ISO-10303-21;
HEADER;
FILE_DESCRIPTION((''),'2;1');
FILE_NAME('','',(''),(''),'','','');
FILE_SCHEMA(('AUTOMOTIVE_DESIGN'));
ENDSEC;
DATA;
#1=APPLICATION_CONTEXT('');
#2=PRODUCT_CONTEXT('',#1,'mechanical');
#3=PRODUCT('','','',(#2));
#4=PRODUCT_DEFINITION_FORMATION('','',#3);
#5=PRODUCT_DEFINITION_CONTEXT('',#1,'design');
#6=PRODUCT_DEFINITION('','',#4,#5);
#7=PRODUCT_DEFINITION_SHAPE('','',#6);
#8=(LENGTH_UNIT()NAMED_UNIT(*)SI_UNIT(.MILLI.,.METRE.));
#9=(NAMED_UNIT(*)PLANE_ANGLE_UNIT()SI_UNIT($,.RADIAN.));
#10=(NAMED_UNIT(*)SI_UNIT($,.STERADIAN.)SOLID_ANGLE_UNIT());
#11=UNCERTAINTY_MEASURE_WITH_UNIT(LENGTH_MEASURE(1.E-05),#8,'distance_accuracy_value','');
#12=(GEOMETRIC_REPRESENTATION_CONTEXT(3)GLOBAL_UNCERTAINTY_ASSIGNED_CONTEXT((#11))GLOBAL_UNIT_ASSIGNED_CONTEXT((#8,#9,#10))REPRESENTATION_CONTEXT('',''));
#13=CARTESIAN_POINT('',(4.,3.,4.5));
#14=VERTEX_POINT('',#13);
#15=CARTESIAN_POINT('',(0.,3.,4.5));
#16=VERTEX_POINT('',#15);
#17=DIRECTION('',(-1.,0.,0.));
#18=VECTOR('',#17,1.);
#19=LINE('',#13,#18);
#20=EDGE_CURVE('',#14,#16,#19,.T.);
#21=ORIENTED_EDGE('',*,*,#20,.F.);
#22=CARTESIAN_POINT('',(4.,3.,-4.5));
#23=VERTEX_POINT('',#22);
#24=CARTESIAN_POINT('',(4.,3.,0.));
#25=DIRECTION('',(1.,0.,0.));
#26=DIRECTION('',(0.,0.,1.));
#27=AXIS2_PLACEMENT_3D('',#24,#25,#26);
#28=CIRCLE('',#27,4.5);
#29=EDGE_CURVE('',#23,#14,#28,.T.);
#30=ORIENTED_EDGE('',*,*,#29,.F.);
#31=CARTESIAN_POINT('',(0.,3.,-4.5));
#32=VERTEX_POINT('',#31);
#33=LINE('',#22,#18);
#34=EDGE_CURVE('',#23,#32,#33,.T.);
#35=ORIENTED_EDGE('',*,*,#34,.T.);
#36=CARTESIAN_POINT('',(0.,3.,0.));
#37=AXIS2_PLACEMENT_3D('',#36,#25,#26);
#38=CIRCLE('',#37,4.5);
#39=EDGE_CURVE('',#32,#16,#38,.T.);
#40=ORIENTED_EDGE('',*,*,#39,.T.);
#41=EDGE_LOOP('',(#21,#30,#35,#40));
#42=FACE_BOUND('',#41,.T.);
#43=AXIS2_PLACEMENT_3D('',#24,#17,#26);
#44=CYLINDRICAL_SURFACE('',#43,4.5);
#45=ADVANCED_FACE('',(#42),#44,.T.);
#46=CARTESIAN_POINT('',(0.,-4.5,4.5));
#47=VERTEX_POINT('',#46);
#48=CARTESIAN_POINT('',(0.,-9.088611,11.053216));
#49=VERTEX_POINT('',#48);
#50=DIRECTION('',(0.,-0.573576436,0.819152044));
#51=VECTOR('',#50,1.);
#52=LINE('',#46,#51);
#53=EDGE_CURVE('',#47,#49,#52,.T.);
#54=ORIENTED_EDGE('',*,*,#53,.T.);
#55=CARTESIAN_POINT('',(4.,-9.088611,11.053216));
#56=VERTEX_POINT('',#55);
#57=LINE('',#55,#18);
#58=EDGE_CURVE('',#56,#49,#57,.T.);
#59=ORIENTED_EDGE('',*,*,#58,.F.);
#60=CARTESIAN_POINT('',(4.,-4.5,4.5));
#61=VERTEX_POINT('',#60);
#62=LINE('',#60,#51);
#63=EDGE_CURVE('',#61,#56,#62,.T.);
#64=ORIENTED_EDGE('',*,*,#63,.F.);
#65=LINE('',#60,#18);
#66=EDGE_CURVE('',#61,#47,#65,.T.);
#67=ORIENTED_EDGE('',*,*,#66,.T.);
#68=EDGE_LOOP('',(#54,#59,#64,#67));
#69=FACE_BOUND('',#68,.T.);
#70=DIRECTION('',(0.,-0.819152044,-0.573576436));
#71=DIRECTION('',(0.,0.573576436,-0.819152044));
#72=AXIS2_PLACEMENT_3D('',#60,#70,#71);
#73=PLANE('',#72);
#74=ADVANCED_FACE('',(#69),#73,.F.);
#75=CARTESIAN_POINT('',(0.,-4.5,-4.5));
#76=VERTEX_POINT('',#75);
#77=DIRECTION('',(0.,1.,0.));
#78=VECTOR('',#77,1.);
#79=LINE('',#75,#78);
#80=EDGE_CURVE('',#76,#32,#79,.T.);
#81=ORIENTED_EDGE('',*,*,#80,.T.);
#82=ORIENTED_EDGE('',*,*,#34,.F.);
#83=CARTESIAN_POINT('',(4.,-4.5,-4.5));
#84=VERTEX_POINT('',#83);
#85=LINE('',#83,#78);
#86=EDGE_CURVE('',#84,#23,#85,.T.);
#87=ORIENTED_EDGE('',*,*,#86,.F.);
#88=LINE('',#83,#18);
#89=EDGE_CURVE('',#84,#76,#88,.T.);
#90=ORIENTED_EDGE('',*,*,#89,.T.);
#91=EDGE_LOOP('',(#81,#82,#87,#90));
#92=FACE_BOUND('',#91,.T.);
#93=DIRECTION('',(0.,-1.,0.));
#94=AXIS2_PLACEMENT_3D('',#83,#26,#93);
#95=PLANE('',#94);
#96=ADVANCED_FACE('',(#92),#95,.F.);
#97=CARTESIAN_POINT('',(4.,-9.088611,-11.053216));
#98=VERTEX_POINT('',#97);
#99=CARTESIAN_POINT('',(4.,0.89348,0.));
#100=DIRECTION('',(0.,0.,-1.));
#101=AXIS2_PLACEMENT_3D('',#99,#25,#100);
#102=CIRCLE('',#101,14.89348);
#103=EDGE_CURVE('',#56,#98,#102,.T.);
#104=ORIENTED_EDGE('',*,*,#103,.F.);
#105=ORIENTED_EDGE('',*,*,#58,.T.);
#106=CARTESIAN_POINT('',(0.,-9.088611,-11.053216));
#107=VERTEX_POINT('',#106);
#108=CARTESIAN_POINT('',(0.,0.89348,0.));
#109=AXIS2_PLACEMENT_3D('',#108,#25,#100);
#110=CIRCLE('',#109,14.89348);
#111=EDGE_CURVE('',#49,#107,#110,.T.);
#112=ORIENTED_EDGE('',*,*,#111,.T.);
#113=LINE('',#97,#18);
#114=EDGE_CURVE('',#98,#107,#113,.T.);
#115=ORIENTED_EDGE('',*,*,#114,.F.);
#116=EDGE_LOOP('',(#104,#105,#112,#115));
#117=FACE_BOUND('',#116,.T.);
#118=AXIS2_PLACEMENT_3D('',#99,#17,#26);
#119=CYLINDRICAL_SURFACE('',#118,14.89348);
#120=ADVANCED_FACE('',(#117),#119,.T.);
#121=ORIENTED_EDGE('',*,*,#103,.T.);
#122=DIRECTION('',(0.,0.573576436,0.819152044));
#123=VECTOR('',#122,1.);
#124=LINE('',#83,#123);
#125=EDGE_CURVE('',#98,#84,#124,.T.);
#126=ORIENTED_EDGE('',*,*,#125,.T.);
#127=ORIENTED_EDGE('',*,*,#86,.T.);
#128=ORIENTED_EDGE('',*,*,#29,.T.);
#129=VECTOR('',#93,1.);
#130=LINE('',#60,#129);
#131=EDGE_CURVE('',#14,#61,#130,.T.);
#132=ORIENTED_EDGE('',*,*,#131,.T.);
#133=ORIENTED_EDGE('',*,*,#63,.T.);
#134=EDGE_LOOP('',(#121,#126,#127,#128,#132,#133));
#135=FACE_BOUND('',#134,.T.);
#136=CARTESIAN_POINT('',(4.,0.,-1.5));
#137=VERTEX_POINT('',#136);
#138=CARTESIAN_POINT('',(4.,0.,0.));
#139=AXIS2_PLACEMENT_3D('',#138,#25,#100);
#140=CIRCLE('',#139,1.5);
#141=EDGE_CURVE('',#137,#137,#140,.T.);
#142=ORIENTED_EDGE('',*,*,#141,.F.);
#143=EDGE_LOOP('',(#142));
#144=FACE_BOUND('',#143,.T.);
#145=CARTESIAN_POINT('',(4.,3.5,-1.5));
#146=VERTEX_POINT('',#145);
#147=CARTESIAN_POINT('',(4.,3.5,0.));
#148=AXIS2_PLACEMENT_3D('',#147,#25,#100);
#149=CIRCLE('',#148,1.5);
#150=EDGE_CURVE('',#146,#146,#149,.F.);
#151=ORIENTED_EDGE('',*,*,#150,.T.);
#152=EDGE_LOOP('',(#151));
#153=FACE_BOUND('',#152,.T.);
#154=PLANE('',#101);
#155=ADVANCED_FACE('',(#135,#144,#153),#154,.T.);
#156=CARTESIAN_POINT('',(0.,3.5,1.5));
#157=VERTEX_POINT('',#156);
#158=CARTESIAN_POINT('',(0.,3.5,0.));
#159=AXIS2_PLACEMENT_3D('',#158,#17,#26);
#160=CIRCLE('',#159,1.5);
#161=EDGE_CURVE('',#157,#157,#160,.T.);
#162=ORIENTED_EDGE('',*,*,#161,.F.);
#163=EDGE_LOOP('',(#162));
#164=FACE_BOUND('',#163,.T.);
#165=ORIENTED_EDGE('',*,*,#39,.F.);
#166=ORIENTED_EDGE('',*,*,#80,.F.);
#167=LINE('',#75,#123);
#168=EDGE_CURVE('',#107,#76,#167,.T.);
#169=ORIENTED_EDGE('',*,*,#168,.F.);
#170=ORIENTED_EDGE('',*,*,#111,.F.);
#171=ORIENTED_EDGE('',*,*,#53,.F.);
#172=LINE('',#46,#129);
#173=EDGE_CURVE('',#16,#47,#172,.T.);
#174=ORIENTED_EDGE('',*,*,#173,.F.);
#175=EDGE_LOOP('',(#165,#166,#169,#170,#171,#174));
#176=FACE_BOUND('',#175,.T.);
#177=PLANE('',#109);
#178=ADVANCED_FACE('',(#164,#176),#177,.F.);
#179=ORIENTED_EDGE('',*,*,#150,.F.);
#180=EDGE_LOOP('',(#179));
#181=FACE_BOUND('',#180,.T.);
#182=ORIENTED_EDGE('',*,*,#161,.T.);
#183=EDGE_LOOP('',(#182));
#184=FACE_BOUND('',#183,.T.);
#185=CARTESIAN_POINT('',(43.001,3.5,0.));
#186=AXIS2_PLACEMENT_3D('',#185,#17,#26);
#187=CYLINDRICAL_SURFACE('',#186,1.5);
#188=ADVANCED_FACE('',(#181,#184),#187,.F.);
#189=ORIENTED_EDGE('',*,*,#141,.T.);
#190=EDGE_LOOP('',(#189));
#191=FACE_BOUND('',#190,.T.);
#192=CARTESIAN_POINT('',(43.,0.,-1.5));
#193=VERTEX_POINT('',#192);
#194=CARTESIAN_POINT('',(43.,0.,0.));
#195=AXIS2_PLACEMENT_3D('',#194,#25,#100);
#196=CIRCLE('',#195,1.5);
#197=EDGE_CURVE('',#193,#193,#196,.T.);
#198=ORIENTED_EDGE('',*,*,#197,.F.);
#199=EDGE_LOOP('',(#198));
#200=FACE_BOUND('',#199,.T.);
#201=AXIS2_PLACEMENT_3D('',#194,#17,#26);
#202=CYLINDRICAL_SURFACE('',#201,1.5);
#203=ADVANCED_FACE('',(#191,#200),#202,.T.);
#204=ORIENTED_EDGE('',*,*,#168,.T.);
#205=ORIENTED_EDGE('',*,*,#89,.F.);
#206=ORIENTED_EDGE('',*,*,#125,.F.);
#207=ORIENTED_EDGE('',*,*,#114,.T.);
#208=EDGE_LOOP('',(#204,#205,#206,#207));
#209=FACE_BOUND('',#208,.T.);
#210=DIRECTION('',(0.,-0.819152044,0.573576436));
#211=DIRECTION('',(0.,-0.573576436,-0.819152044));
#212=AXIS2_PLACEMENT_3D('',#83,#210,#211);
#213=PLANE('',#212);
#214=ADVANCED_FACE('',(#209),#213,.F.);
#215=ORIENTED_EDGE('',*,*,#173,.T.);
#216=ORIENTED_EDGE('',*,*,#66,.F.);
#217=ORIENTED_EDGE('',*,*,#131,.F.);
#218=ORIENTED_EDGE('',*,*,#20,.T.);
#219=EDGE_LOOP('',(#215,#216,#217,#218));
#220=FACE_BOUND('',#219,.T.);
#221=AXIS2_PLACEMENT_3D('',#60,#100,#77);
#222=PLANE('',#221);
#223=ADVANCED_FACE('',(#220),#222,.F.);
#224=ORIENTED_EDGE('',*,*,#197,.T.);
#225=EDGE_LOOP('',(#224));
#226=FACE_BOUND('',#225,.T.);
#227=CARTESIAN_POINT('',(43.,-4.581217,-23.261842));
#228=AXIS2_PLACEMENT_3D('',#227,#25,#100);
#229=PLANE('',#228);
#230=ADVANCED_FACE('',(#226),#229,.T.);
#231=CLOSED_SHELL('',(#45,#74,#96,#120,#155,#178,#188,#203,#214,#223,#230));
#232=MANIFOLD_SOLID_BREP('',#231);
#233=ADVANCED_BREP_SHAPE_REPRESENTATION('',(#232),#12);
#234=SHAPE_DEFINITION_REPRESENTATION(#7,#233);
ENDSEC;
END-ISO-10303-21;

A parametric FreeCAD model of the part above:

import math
import FreeCAD as App
import Part
import Sketcher
from FreeCAD import Vector
Q = App.Units.Quantity

doc = App.newDocument("Part")
body = doc.addObject("PartDesign::Body", "Body")

# Sketch on YZ plane
sketch1 = doc.addObject("Sketcher::SketchObject", "Sketch")
body.addObject(sketch1)
sketch1.AttachmentSupport = (doc.YZ_Plane, [""])
sketch1.MapMode = "FlatFace"
sketch1.addGeometry(Part.LineSegment(Vector(3, 4.5, 0), Vector(-4.5, 4.5, 0)), False)
sketch1.addGeometry(Part.LineSegment(Vector(-4.5, 4.5, 0), Vector(-9.088611, 11.053216, 0)), False)
sketch1.addGeometry(Part.ArcOfCircle(Part.Circle(Vector(0.89348, 0, 0), Vector(0, 0, 1), 14.89348), math.radians(132.084996), math.radians(227.915004)), False)
sketch1.addGeometry(Part.LineSegment(Vector(-9.088611, -11.053216, 0), Vector(-4.5, -4.5, 0)), False)
sketch1.addGeometry(Part.LineSegment(Vector(-4.5, -4.5, 0), Vector(3, -4.5, 0)), False)
sketch1.addGeometry(Part.ArcOfCircle(Part.Circle(Vector(3, 0, 0), Vector(0, 0, 1), 4.5), math.radians(-90), math.radians(90)), False)
sketch1.addGeometry(Part.Circle(Vector(0, 0, 0), Vector(0, 0, 1), 1.5), False)
sketch1.addConstraint(Sketcher.Constraint("Coincident", 0, 2, 1, 1))
sketch1.addConstraint(Sketcher.Constraint("Coincident", 1, 2, 2, 1))
sketch1.addConstraint(Sketcher.Constraint("Coincident", 2, 2, 3, 1))
sketch1.addConstraint(Sketcher.Constraint("Coincident", 3, 2, 4, 1))
sketch1.addConstraint(Sketcher.Constraint("Tangent", 4, 2, 5, 1))
sketch1.addConstraint(Sketcher.Constraint("Tangent", 5, 2, 0, 1))
sketch1.addConstraint(Sketcher.Constraint("Horizontal", 0))
sketch1.addConstraint(Sketcher.Constraint("Horizontal", 4))
sketch1.addConstraint(Sketcher.Constraint("Coincident", 6, 3, -1, 1))
sketch1.addConstraint(Sketcher.Constraint("Symmetric", 1, 2, 2, 2, -1))
sketch1.addConstraint(Sketcher.Constraint("Symmetric", 0, 2, 3, 2, -1))
sketch1.addConstraint(Sketcher.Constraint("Diameter", 6, Q("3 mm")))
sketch1.addConstraint(Sketcher.Constraint("Radius", 5, Q("4.5 mm")))
sketch1.addConstraint(Sketcher.Constraint("Angle", 1, Q("125 deg")))
sketch1.addConstraint(Sketcher.Constraint("Distance", 1, Q("8 mm")))
sketch1.addConstraint(Sketcher.Constraint("DistanceX", 0, 2, 0, 1, Q("7.5 mm")))
sketch1.addConstraint(Sketcher.Constraint("DistanceX", -1, 1, 5, 3, Q("3 mm")))
sketch1.addConstraint(Sketcher.Constraint("Radius", 2, Q("14.89348 mm")))
pad1 = doc.addObject("PartDesign::Pad", "Pad")
body.addObject(pad1)
pad1.Profile = sketch1
pad1.Length = 4

# Sketch on YZ plane
sketch2 = doc.addObject("Sketcher::SketchObject", "Sketch001")
body.addObject(sketch2)
sketch2.AttachmentSupport = (doc.YZ_Plane, [""])
sketch2.MapMode = "FlatFace"
sketch2.addGeometry(Part.Circle(Vector(0, 0, 0), Vector(0, 0, 1), 1.5), False)
sketch2.addConstraint(Sketcher.Constraint("Coincident", 0, 3, -1, 1))
sketch2.addConstraint(Sketcher.Constraint("Diameter", 0, Q("3 mm")))
pad2 = doc.addObject("PartDesign::Pad", "Pad001")
body.addObject(pad2)
pad2.Profile = sketch2
pad2.Length = 43

# Sketch on YZ plane
sketch3 = doc.addObject("Sketcher::SketchObject", "Sketch002")
body.addObject(sketch3)
sketch3.AttachmentSupport = (doc.YZ_Plane, [""])
sketch3.MapMode = "FlatFace"
sketch3.addGeometry(Part.Circle(Vector(3.5, 0, 0), Vector(0, 0, 1), 1.5), False)
sketch3.addConstraint(Sketcher.Constraint("PointOnObject", 0, 3, -1))
sketch3.addConstraint(Sketcher.Constraint("Diameter", 0, Q("3 mm")))
sketch3.addConstraint(Sketcher.Constraint("DistanceX", -1, 1, 0, 3, Q("3.5 mm")))
pocket1 = doc.addObject("PartDesign::Pocket", "Pocket")
body.addObject(pocket1)
pocket1.Profile = sketch3
pocket1.Type = "UpToFirst"
pocket1.Reversed = True

doc.recompute()
